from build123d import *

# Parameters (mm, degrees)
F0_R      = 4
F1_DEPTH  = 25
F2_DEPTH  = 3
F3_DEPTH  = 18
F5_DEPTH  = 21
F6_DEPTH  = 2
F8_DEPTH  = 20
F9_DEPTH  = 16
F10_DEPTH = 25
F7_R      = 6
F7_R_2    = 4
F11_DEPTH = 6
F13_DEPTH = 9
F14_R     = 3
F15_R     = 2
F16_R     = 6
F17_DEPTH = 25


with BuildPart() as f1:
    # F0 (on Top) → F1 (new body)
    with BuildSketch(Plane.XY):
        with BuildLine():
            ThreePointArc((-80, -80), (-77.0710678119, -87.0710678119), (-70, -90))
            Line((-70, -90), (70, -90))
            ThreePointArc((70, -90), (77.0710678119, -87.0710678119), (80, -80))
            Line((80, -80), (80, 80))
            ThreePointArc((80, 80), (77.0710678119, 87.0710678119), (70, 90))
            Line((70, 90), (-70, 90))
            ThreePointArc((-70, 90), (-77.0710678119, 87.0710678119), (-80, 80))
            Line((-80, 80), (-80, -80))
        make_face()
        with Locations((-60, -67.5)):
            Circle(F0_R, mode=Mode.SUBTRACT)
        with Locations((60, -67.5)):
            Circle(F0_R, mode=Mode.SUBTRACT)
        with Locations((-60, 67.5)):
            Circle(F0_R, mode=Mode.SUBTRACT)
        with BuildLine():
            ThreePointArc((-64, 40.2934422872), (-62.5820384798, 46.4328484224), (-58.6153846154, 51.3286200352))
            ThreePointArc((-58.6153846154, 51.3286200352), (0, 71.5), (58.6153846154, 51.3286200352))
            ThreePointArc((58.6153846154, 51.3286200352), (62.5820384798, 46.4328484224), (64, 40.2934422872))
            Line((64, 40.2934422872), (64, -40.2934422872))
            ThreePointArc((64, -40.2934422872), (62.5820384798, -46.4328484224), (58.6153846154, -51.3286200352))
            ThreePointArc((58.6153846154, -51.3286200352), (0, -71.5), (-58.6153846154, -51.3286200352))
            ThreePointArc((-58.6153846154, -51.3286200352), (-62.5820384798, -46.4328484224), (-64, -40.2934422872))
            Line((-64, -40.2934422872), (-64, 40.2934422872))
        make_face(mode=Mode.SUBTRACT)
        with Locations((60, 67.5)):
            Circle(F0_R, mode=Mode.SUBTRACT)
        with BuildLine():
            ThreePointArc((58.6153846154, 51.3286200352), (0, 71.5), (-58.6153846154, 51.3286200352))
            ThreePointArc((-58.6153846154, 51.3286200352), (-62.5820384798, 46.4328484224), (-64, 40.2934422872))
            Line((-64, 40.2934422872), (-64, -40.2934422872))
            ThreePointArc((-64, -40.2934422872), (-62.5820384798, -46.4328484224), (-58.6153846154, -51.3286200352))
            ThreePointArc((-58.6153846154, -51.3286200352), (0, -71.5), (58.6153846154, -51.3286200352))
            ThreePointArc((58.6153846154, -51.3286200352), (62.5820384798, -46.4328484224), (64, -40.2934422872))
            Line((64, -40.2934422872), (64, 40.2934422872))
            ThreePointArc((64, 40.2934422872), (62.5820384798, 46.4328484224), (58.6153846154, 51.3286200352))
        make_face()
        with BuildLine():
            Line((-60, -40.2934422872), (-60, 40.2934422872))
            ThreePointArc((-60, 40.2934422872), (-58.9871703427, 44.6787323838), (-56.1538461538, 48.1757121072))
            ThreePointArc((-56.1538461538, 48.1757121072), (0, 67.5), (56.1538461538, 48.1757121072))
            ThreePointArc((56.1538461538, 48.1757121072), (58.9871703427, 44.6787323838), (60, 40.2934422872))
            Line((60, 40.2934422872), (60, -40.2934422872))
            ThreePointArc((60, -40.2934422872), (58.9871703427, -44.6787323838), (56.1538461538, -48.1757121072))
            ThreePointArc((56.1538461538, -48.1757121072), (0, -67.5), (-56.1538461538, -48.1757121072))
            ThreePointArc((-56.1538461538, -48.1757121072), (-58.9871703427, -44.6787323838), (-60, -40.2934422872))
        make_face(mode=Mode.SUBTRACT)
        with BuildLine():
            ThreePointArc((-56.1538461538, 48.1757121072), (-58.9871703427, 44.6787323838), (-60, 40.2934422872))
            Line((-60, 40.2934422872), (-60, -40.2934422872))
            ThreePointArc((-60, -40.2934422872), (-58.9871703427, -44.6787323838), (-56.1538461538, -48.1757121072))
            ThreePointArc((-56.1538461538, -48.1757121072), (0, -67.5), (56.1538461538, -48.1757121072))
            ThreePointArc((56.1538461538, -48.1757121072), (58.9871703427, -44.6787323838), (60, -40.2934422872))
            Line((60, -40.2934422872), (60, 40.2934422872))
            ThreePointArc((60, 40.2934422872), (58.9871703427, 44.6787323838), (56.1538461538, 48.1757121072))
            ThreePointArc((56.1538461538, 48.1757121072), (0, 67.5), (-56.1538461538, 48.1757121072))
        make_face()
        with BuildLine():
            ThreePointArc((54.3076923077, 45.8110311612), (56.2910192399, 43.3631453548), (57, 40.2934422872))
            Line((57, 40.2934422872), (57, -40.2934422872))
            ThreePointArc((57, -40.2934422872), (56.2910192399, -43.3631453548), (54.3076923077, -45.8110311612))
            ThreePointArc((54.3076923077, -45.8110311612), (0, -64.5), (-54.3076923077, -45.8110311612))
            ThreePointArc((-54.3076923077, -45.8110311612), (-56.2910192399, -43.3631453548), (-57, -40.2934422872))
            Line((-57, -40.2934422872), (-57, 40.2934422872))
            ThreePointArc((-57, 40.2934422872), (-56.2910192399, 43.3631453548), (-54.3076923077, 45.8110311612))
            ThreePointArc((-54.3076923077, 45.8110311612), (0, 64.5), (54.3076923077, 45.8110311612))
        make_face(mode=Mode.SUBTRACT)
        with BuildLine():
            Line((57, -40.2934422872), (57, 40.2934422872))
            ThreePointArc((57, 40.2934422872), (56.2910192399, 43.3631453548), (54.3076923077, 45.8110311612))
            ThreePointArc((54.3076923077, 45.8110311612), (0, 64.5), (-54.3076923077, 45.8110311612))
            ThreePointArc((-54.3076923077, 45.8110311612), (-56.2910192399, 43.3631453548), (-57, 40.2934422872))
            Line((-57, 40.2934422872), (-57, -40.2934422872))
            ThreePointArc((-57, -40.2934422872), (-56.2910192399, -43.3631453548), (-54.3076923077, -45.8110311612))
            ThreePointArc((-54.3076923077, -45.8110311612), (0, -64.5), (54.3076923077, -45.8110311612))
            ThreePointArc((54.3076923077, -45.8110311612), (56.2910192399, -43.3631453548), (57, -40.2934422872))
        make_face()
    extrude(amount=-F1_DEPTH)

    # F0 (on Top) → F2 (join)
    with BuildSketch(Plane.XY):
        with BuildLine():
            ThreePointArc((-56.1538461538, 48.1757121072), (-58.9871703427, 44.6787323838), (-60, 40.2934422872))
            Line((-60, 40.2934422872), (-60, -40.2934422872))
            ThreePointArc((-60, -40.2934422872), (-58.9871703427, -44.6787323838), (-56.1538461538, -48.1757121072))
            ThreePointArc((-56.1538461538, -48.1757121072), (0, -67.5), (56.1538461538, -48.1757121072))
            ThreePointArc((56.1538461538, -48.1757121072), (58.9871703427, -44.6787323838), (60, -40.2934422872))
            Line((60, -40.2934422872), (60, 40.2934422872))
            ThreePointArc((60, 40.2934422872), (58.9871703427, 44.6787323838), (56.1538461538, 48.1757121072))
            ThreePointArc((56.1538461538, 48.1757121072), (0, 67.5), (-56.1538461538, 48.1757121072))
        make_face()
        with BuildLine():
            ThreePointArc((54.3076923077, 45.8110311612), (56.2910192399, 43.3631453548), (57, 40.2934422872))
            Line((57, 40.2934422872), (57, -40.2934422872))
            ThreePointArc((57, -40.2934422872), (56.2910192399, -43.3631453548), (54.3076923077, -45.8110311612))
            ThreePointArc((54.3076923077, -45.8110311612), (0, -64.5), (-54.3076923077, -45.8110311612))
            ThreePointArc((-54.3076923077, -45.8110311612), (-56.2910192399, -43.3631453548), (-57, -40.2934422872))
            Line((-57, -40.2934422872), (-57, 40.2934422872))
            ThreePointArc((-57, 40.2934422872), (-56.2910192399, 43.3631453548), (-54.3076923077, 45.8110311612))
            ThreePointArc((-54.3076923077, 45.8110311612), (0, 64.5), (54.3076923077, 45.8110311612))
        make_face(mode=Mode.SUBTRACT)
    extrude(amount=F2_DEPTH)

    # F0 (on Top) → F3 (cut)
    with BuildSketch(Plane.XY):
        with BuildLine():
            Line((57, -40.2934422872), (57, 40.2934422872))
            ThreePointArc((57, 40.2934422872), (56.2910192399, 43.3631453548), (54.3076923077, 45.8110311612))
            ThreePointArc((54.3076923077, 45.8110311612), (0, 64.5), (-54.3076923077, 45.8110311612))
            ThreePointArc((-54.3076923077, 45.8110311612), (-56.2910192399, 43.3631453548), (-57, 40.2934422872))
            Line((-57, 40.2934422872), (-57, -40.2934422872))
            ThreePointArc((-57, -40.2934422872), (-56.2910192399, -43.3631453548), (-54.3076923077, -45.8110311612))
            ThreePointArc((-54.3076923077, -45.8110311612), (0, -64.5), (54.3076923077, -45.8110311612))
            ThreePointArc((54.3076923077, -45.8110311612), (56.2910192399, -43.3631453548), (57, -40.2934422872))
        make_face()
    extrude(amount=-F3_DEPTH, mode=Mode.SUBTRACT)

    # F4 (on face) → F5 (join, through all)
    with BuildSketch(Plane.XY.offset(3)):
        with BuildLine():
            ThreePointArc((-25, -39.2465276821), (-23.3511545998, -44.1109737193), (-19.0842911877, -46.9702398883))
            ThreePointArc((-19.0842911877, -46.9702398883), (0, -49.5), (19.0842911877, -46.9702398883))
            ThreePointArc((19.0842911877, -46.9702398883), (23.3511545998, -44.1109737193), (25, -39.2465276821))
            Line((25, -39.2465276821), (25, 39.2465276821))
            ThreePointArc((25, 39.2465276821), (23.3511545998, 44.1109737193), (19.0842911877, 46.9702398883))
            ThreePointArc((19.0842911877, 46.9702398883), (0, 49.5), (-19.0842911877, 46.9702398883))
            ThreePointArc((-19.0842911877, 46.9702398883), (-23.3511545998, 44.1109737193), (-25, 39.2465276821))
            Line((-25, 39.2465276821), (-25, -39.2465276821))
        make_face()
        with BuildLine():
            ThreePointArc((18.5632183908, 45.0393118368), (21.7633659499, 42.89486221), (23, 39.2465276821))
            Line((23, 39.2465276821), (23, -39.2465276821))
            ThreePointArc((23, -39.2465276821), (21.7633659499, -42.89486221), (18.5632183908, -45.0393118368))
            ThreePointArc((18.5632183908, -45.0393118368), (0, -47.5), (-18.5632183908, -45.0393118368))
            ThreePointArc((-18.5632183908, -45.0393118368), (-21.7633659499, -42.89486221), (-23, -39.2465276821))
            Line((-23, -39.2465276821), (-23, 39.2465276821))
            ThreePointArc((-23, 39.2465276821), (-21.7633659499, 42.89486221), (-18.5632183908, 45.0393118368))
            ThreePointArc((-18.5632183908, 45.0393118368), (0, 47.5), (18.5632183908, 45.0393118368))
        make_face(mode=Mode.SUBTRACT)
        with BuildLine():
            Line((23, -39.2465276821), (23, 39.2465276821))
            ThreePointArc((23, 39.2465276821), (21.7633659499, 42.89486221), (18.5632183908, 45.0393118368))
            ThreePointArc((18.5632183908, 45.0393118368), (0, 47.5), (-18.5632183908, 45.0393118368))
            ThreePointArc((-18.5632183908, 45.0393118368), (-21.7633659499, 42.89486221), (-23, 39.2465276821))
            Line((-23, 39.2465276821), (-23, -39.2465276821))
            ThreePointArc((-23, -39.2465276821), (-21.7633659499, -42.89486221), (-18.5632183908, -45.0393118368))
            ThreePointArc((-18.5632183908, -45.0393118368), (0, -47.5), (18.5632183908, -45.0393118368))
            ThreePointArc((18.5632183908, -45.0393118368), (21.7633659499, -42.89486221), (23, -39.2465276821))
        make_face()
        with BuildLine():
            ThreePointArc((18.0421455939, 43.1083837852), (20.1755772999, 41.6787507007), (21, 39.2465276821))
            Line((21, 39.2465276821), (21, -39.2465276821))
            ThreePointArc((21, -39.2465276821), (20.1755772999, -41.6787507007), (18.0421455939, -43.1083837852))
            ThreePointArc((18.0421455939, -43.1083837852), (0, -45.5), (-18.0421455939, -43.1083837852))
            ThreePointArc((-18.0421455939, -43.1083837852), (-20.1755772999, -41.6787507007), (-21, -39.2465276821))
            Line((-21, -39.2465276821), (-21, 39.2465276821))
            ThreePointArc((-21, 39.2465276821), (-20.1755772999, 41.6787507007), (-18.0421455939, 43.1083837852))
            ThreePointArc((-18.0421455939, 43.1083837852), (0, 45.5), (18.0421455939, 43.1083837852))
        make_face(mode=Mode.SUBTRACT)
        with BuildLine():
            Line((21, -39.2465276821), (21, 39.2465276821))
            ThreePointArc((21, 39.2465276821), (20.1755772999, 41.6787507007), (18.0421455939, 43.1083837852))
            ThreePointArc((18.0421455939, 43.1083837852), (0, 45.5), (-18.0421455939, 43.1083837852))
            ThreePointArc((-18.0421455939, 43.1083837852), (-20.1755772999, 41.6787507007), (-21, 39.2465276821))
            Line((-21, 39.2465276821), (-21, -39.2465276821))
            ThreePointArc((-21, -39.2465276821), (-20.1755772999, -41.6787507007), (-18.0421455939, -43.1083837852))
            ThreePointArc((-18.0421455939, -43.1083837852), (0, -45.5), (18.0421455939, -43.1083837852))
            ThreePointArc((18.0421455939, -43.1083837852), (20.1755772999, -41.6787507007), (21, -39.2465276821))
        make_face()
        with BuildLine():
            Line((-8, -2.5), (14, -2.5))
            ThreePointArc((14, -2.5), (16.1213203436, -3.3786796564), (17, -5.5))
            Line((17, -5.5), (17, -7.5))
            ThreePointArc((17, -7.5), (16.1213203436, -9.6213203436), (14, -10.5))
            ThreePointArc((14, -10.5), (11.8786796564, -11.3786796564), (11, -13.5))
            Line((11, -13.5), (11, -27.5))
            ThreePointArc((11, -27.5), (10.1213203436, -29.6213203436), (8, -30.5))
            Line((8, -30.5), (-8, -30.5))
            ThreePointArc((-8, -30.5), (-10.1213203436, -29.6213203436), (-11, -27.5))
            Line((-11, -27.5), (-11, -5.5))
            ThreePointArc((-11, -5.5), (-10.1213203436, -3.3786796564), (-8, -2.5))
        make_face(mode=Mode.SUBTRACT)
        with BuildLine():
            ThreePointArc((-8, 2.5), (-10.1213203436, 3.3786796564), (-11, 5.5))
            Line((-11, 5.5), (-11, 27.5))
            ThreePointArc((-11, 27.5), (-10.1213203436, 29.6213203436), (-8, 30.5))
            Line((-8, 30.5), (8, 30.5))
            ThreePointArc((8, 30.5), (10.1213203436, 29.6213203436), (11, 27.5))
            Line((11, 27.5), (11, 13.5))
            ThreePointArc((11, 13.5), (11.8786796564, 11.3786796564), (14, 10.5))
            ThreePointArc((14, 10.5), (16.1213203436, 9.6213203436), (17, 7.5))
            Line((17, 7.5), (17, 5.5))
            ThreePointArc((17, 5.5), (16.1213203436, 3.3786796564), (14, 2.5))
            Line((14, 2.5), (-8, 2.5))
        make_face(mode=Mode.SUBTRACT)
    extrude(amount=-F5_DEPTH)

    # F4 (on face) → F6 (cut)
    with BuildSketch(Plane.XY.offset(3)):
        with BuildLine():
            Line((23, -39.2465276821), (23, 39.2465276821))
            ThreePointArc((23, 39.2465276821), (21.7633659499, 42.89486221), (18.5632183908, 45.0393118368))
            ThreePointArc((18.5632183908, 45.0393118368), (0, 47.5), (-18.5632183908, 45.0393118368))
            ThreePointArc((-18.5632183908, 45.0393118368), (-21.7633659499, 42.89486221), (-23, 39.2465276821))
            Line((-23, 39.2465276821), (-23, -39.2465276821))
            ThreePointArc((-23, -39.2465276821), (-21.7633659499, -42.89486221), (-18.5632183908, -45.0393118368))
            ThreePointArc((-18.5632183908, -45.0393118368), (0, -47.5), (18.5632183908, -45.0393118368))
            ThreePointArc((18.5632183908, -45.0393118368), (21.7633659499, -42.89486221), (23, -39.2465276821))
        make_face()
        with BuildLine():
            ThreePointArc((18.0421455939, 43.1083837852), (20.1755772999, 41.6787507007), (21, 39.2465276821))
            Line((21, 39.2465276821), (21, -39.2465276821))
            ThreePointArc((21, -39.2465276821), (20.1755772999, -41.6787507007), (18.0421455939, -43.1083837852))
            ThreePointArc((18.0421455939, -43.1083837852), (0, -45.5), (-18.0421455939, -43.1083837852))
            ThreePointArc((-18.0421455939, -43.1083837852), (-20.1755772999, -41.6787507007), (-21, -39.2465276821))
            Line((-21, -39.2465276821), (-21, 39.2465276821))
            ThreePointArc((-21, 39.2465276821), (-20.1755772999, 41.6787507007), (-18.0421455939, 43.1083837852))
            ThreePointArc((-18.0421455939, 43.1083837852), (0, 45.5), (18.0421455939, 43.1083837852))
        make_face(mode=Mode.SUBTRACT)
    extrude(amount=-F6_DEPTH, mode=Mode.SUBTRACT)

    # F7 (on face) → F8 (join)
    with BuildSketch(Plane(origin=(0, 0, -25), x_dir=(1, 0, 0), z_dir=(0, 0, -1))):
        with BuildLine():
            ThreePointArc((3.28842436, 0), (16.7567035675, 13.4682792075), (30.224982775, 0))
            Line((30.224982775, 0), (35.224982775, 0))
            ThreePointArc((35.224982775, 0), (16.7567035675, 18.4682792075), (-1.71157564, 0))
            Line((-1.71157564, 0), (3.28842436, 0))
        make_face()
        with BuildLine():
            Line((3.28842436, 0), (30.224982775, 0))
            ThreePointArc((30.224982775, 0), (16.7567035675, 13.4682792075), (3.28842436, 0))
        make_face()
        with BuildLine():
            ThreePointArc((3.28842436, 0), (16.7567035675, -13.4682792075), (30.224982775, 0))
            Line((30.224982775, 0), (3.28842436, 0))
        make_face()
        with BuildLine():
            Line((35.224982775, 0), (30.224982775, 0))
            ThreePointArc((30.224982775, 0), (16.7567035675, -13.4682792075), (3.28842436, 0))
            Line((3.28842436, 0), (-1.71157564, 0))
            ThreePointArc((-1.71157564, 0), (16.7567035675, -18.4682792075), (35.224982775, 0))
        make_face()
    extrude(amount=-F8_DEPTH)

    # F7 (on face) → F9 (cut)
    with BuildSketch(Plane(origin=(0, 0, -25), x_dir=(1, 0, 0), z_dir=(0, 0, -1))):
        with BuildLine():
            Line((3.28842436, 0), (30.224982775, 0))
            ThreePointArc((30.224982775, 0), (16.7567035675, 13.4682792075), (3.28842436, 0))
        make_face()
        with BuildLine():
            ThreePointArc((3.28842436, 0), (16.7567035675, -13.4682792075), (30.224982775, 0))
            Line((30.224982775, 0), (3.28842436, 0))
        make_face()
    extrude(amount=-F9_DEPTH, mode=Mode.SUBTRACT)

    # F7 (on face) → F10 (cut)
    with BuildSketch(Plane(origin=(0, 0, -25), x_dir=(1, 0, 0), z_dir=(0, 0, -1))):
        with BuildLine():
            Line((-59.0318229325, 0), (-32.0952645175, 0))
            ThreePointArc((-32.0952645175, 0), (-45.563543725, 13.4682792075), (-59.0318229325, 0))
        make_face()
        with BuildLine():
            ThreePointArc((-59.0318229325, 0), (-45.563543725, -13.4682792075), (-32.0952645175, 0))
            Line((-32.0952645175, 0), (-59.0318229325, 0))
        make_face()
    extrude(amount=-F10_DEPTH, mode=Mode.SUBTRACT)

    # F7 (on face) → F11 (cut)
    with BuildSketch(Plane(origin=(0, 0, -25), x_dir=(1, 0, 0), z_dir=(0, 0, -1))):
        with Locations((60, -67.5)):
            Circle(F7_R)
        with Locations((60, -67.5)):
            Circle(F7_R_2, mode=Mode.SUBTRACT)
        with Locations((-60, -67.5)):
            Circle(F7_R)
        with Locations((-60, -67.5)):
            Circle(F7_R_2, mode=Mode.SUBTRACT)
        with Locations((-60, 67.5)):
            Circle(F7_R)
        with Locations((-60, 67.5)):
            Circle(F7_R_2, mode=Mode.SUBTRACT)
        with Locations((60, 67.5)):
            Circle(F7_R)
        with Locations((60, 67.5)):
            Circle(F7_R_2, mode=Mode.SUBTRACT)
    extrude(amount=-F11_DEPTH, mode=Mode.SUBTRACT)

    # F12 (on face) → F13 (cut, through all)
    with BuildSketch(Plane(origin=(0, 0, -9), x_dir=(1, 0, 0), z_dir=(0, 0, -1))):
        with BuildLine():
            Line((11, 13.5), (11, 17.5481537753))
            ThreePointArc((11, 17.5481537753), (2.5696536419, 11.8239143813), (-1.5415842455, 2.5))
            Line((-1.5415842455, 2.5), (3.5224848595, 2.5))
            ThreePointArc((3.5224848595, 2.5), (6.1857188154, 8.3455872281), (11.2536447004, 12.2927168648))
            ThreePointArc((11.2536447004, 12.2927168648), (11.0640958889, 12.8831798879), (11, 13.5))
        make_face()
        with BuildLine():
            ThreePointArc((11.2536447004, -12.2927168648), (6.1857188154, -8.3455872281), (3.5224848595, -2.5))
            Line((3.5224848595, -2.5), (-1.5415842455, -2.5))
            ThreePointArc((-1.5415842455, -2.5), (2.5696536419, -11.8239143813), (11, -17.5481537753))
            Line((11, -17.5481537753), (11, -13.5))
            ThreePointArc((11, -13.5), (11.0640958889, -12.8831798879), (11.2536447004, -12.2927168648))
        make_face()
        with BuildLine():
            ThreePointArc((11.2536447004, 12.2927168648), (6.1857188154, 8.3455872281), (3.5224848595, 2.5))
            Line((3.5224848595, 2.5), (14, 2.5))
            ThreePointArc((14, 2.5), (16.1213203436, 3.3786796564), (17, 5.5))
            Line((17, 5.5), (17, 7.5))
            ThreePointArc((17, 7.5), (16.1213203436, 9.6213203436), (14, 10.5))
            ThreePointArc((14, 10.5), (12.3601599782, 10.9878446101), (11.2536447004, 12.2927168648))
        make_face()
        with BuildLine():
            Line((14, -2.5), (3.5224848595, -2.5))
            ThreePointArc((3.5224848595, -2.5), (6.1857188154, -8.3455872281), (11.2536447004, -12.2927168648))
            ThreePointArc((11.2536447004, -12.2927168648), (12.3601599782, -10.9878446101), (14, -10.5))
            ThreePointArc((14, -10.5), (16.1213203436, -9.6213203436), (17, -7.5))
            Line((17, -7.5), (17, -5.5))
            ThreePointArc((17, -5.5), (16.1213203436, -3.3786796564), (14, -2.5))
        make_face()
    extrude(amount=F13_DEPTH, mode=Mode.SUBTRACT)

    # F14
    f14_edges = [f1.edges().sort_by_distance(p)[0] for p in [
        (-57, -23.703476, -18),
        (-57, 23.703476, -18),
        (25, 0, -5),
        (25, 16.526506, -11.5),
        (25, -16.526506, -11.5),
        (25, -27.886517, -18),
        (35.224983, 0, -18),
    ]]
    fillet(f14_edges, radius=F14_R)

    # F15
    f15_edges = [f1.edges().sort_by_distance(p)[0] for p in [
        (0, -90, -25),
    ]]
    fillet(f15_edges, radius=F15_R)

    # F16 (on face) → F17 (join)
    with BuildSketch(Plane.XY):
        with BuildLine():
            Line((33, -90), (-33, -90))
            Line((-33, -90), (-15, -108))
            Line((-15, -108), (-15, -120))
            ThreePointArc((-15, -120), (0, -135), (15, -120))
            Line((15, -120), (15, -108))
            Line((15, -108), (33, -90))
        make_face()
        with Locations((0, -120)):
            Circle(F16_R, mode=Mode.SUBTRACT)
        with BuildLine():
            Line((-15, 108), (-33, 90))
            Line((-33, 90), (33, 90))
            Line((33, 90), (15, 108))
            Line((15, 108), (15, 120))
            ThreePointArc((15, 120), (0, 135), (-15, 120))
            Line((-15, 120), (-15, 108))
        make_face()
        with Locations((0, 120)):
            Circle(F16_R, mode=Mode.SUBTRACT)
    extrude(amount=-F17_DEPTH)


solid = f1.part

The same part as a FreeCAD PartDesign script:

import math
import FreeCAD as App
import Part
import Sketcher

V = App.Vector
Q = App.Units.Quantity


def edges_at(feature, points):
    """Names of the edges that pass closest to the given points."""
    edges = feature.Shape.Edges
    near = lambda p: min(range(len(edges)), key=lambda i: edges[i].distToShape(Part.Vertex(*p))[0])
    return sorted({f"Edge{near(p) + 1}" for p in points})

doc = App.newDocument("Part")
body = doc.addObject("PartDesign::Body", "Body")

# Sketch on XY plane
sketch1 = body.newObject("Sketcher::SketchObject", "Sketch")
sketch1.AttachmentSupport = (doc.getObject("XY_Plane"), [""])
sketch1.MapMode = "FlatFace"
sketch1.addGeometry([
    Part.ArcOfCircle(Part.Circle(V(-70, -80, 0), V(0, 0, 1), 10), math.radians(180), math.radians(270)),  # 0
    Part.LineSegment(V(-70, -90, 0), V(70, -90, 0)),  # 1
    Part.ArcOfCircle(Part.Circle(V(70, -80, 0), V(0, 0, 1), 10), math.radians(-90), math.radians(0)),  # 2
    Part.LineSegment(V(80, -80, 0), V(80, 80, 0)),  # 3
    Part.ArcOfCircle(Part.Circle(V(70, 80, 0), V(0, 0, 1), 10), math.radians(0), math.radians(90)),  # 4
    Part.LineSegment(V(70, 90, 0), V(-70, 90, 0)),  # 5
    Part.ArcOfCircle(Part.Circle(V(-70, 80, 0), V(0, 0, 1), 10), math.radians(90), math.radians(180)),  # 6
    Part.LineSegment(V(-80, 80, 0), V(-80, -80, 0)),  # 7
    Part.Circle(V(-60, -67.5, 0), V(0, 0, 1), 4),  # 8
    Part.Circle(V(60, -67.5, 0), V(0, 0, 1), 4),  # 9
    Part.Circle(V(-60, 67.5, 0), V(0, 0, 1), 4),  # 10
    Part.Circle(V(60, 67.5, 0), V(0, 0, 1), 4),  # 11
], False)
sketch1.addConstraint([
    Sketcher.Constraint("Tangent", 0, 2, 1, 1),
    Sketcher.Constraint("Tangent", 1, 2, 2, 1),
    Sketcher.Constraint("Tangent", 2, 2, 3, 1),
    Sketcher.Constraint("Tangent", 3, 2, 4, 1),
    Sketcher.Constraint("Tangent", 4, 2, 5, 1),
    Sketcher.Constraint("Tangent", 5, 2, 6, 1),
    Sketcher.Constraint("Tangent", 6, 2, 7, 1),
    Sketcher.Constraint("Tangent", 7, 2, 0, 1),
    Sketcher.Constraint("Horizontal", 1),
    Sketcher.Constraint("Vertical", 3),
    Sketcher.Constraint("Horizontal", 5),
    Sketcher.Constraint("Vertical", 7),
    Sketcher.Constraint("Equal", 0, 2),
    Sketcher.Constraint("Equal", 2, 4),
    Sketcher.Constraint("Equal", 4, 6),
    Sketcher.Constraint("Equal", 8, 9),
    Sketcher.Constraint("Equal", 9, 10),
    Sketcher.Constraint("Equal", 10, 11),
    Sketcher.Constraint("Symmetric", 0, 3, 4, 3, -1, 1),
    Sketcher.Constraint("Symmetric", 9, 3, 10, 3, -1, 1),
    Sketcher.Constraint("Symmetric", 8, 3, 11, 3, -1, 1),
    Sketcher.Constraint("Symmetric", 8, 3, 9, 3, -2),
    Sketcher.Constraint("Diameter", 8, Q("8 mm")),
    Sketcher.Constraint("Radius", 0, Q("10 mm")),
    Sketcher.Constraint("DistanceX", 1, 1, 1, 2, Q("140 mm")),
    Sketcher.Constraint("DistanceY", 3, 1, 3, 2, Q("160 mm")),
    Sketcher.Constraint("DistanceX", 8, 3, -1, 1, Q("60 mm")),
    Sketcher.Constraint("DistanceY", 8, 3, 10, 3, Q("135 mm")),
])
pad1 = body.newObject("PartDesign::Pad", "Pad")
pad1.Profile = sketch1
pad1.Length = 25
pad1.Reversed = True

# Sketch on XY plane
sketch2 = body.newObject("Sketcher::SketchObject", "Sketch001")
sketch2.AttachmentSupport = (doc.getObject("XY_Plane"), [""])
sketch2.MapMode = "FlatFace"
sketch2.addGeometry([
    Part.ArcOfCircle(Part.Circle(V(-50, 40, 0), V(0, 0, 1), 10), math.radians(128), math.radians(180)),  # 0
    Part.LineSegment(V(-60, 40, 0), V(-60, -40, 0)),  # 1
    Part.ArcOfCircle(Part.Circle(V(-50, -40, 0), V(0, 0, 1), 10), math.radians(180), math.radians(232)),  # 2
    Part.ArcOfCircle(Part.Circle(V(0, 24, 0), V(0, 0, 1), 91), math.radians(-128), math.radians(-52)),  # 3
    Part.ArcOfCircle(Part.Circle(V(50, -40, 0), V(0, 0, 1), 10), math.radians(-52), math.radians(0)),  # 4
    Part.LineSegment(V(60, -40, 0), V(60, 40, 0)),  # 5
    Part.ArcOfCircle(Part.Circle(V(50, 40, 0), V(0, 0, 1), 10), math.radians(0), math.radians(52)),  # 6
    Part.ArcOfCircle(Part.Circle(V(0, -24, 0), V(0, 0, 1), 91), math.radians(52), math.radians(128)),  # 7
    Part.ArcOfCircle(Part.Circle(V(0, -24, 0), V(0, 0, 1), 88), math.radians(52), math.radians(128)),  # 8
    Part.ArcOfCircle(Part.Circle(V(50, 40, 0), V(0, 0, 1), 7), math.radians(0), math.radians(52)),  # 9
    Part.LineSegment(V(57, 40, 0), V(57, -40, 0)),  # 10
    Part.ArcOfCircle(Part.Circle(V(50, -40, 0), V(0, 0, 1), 7), math.radians(-52), math.radians(0)),  # 11
    Part.ArcOfCircle(Part.Circle(V(0, 24, 0), V(0, 0, 1), 88), math.radians(-128), math.radians(-52)),  # 12
    Part.ArcOfCircle(Part.Circle(V(-50, -40, 0), V(0, 0, 1), 7), math.radians(180), math.radians(232)),  # 13
    Part.LineSegment(V(-57, -40, 0), V(-57, 40, 0)),  # 14
    Part.ArcOfCircle(Part.Circle(V(-50, 40, 0), V(0, 0, 1), 7), math.radians(128), math.radians(180)),  # 15
], False)
sketch2.addConstraint([
    Sketcher.Constraint("Tangent", 0, 2, 1, 1),
    Sketcher.Constraint("Tangent", 1, 2, 2, 1),
    Sketcher.Constraint("Tangent", 2, 2, 3, 1),
    Sketcher.Constraint("Tangent", 3, 2, 4, 1),
    Sketcher.Constraint("Tangent", 4, 2, 5, 1),
    Sketcher.Constraint("Tangent", 5, 2, 6, 1),
    Sketcher.Constraint("Tangent", 6, 2, 7, 1),
    Sketcher.Constraint("Tangent", 7, 2, 0, 1),
    Sketcher.Constraint("Tangent", 8, 1, 9, 2),
    Sketcher.Constraint("Tangent", 9, 1, 10, 1),
    Sketcher.Constraint("Tangent", 10, 2, 11, 2),
    Sketcher.Constraint("Tangent", 11, 1, 12, 2),
    Sketcher.Constraint("Tangent", 12, 1, 13, 2),
    Sketcher.Constraint("Tangent", 13, 1, 14, 1),
    Sketcher.Constraint("Tangent", 14, 2, 15, 2),
    Sketcher.Constraint("Tangent", 15, 1, 8, 2),
    Sketcher.Constraint("Vertical", 1),
    Sketcher.Constraint("Vertical", 5),
    Sketcher.Constraint("Vertical", 10),
    Sketcher.Constraint("Vertical", 14),
    Sketcher.Constraint("Coincident", 8, 3, 7, 3),
    Sketcher.Constraint("Coincident", 9, 3, 6, 3),
    Sketcher.Constraint("Coincident", 11, 3, 4, 3),
    Sketcher.Constraint("Coincident", 12, 3, 3, 3),
    Sketcher.Constraint("Coincident", 13, 3, 2, 3),
    Sketcher.Constraint("Equal", 0, 2),
    Sketcher.Constraint("Equal", 2, 4),
    Sketcher.Constraint("Equal", 4, 6),
    Sketcher.Constraint("Equal", 3, 7),
    Sketcher.Constraint("Equal", 13, 15),
    Sketcher.Constraint("Symmetric", 0, 3, 4, 3, -1, 1),
    Sketcher.Constraint("Symmetric", 3, 3, 7, 3, -1),
    Sketcher.Constraint("Radius", 0, Q("10 mm")),
    Sketcher.Constraint("Radius", 9, Q("7 mm")),
    Sketcher.Constraint("Radius", 3, Q("91.25 mm")),
    Sketcher.Constraint("DistanceX", 0, 3, -1, 1, Q("50 mm")),
    Sketcher.Constraint("DistanceY", 7, 3, 3, 3, Q("47.5 mm")),
])
pad2 = body.newObject("PartDesign::Pad", "Pad001")
pad2.Profile = sketch2
pad2.Length = 3

# Sketch on XY plane
sketch3 = body.newObject("Sketcher::SketchObject", "Sketch002")
sketch3.AttachmentSupport = (doc.getObject("XY_Plane"), [""])
sketch3.MapMode = "FlatFace"
sketch3.addGeometry([
    Part.LineSegment(V(57, -40, 0), V(57, 40, 0)),  # 0
    Part.ArcOfCircle(Part.Circle(V(50, 40, 0), V(0, 0, 1), 7), math.radians(0), math.radians(52)),  # 1
    Part.ArcOfCircle(Part.Circle(V(0, -24, 0), V(0, 0, 1), 88), math.radians(52), math.radians(128)),  # 2
    Part.ArcOfCircle(Part.Circle(V(-50, 40, 0), V(0, 0, 1), 7), math.radians(128), math.radians(180)),  # 3
    Part.LineSegment(V(-57, 40, 0), V(-57, -40, 0)),  # 4
    Part.ArcOfCircle(Part.Circle(V(-50, -40, 0), V(0, 0, 1), 7), math.radians(180), math.radians(232)),  # 5
    Part.ArcOfCircle(Part.Circle(V(0, 24, 0), V(0, 0, 1), 88), math.radians(-128), math.radians(-52)),  # 6
    Part.ArcOfCircle(Part.Circle(V(50, -40, 0), V(0, 0, 1), 7), math.radians(-52), math.radians(0)),  # 7
], False)
sketch3.addConstraint([
    Sketcher.Constraint("Tangent", 0, 2, 1, 1),
    Sketcher.Constraint("Tangent", 1, 2, 2, 1),
    Sketcher.Constraint("Tangent", 2, 2, 3, 1),
    Sketcher.Constraint("Tangent", 3, 2, 4, 1),
    Sketcher.Constraint("Tangent", 4, 2, 5, 1),
    Sketcher.Constraint("Tangent", 5, 2, 6, 1),
    Sketcher.Constraint("Tangent", 6, 2, 7, 1),
    Sketcher.Constraint("Tangent", 7, 2, 0, 1),
    Sketcher.Constraint("Vertical", 0),
    Sketcher.Constraint("Vertical", 4),
    Sketcher.Constraint("Equal", 1, 3),
    Sketcher.Constraint("Equal", 3, 5),
    Sketcher.Constraint("Equal", 2, 6),
    Sketcher.Constraint("Equal", 5, 7),
    Sketcher.Constraint("Symmetric", 1, 3, 5, 3, -1, 1),
    Sketcher.Constraint("Symmetric", 2, 3, 6, 3, -1),
    Sketcher.Constraint("Radius", 1, Q("7 mm")),
    Sketcher.Constraint("Radius", 2, Q("88.25 mm")),
    Sketcher.Constraint("DistanceX", -1, 1, 1, 3, Q("50 mm")),
    Sketcher.Constraint("DistanceY", 2, 3, 6, 3, Q("47.5 mm")),
])
pocket1 = body.newObject("PartDesign::Pocket", "Pocket")
pocket1.Profile = sketch3
pocket1.Length = 18

# Sketch on XY plane
sketch4 = body.newObject("Sketcher::SketchObject", "Sketch003")
sketch4.AttachmentSupport = (doc.getObject("XY_Plane"), [""])
sketch4.MapMode = "FlatFace"
sketch4.AttachmentOffset = App.Placement(V(0, 0, 3), App.Rotation())
sketch4.addGeometry([
    Part.ArcOfCircle(Part.Circle(V(-17, -39.2, 0), V(0, 0, 1), 8), math.radians(180), math.radians(255)),  # 0
    Part.ArcOfCircle(Part.Circle(V(0, 23.7, 0), V(0, 0, 1), 73.2), math.radians(-105), math.radians(-75)),  # 1
    Part.ArcOfCircle(Part.Circle(V(17, -39.2, 0), V(0, 0, 1), 8), math.radians(-75), math.radians(0)),  # 2
    Part.LineSegment(V(25, -39.2, 0), V(25, 39.2, 0)),  # 3
    Part.ArcOfCircle(Part.Circle(V(17, 39.2, 0), V(0, 0, 1), 8), math.radians(0), math.radians(75)),  # 4
    Part.ArcOfCircle(Part.Circle(V(0, -23.7, 0), V(0, 0, 1), 73.2), math.radians(75), math.radians(105)),  # 5
    Part.ArcOfCircle(Part.Circle(V(-17, 39.2, 0), V(0, 0, 1), 8), math.radians(105), math.radians(180)),  # 6
    Part.LineSegment(V(-25, 39.2, 0), V(-25, -39.2, 0)),  # 7
    Part.ArcOfCircle(Part.Circle(V(-8, -5.5, 0), V(0, 0, 1), 3), math.radians(90), math.radians(180)),  # 8
    Part.LineSegment(V(-8, -2.5, 0), V(14, -2.5, 0)),  # 9
    Part.ArcOfCircle(Part.Circle(V(14, -5.5, 0), V(0, 0, 1), 3), math.radians(0), math.radians(90)),  # 10
    Part.LineSegment(V(17, -5.5, 0), V(17, -7.5, 0)),  # 11
    Part.ArcOfCircle(Part.Circle(V(14, -7.5, 0), V(0, 0, 1), 3), math.radians(-90), math.radians(0)),  # 12
    Part.ArcOfCircle(Part.Circle(V(14, -13.5, 0), V(0, 0, 1), 3), math.radians(90), math.radians(180)),  # 13
    Part.LineSegment(V(11, -13.5, 0), V(11, -27.5, 0)),  # 14
    Part.ArcOfCircle(Part.Circle(V(8, -27.5, 0), V(0, 0, 1), 3), math.radians(-90), math.radians(0)),  # 15
    Part.LineSegment(V(8, -30.5, 0), V(-8, -30.5, 0)),  # 16
    Part.ArcOfCircle(Part.Circle(V(-8, -27.5, 0), V(0, 0, 1), 3), math.radians(180), math.radians(270)),  # 17
    Part.LineSegment(V(-11, -27.5, 0), V(-11, -5.5, 0)),  # 18
    Part.LineSegment(V(14, 2.5, 0), V(-8, 2.5, 0)),  # 19
    Part.ArcOfCircle(Part.Circle(V(-8, 5.5, 0), V(0, 0, 1), 3), math.radians(180), math.radians(270)),  # 20
    Part.LineSegment(V(-11, 5.5, 0), V(-11, 27.5, 0)),  # 21
    Part.ArcOfCircle(Part.Circle(V(-8, 27.5, 0), V(0, 0, 1), 3), math.radians(90), math.radians(180)),  # 22
    Part.LineSegment(V(-8, 30.5, 0), V(8, 30.5, 0)),  # 23
    Part.ArcOfCircle(Part.Circle(V(8, 27.5, 0), V(0, 0, 1), 3), math.radians(0), math.radians(90)),  # 24
    Part.LineSegment(V(11, 27.5, 0), V(11, 13.5, 0)),  # 25
    Part.ArcOfCircle(Part.Circle(V(14, 13.5, 0), V(0, 0, 1), 3), math.radians(180), math.radians(270)),  # 26
    Part.ArcOfCircle(Part.Circle(V(14, 7.5, 0), V(0, 0, 1), 3), math.radians(0), math.radians(90)),  # 27
    Part.LineSegment(V(17, 7.5, 0), V(17, 5.5, 0)),  # 28
    Part.ArcOfCircle(Part.Circle(V(14, 5.5, 0), V(0, 0, 1), 3), math.radians(-90), math.radians(0)),  # 29
], False)
sketch4.addConstraint([
    Sketcher.Constraint("Tangent", 0, 2, 1, 1),
    Sketcher.Constraint("Tangent", 1, 2, 2, 1),
    Sketcher.Constraint("Tangent", 2, 2, 3, 1),
    Sketcher.Constraint("Tangent", 3, 2, 4, 1),
    Sketcher.Constraint("Tangent", 4, 2, 5, 1),
    Sketcher.Constraint("Tangent", 5, 2, 6, 1),
    Sketcher.Constraint("Tangent", 6, 2, 7, 1),
    Sketcher.Constraint("Tangent", 7, 2, 0, 1),
    Sketcher.Constraint("Tangent", 8, 1, 9, 1),
    Sketcher.Constraint("Tangent", 9, 2, 10, 2),
    Sketcher.Constraint("Tangent", 10, 1, 11, 1),
    Sketcher.Constraint("Tangent", 11, 2, 12, 2),
    Sketcher.Constraint("Tangent", 12, 1, 13, 1),
    Sketcher.Constraint("Tangent", 13, 2, 14, 1),
    Sketcher.Constraint("Tangent", 14, 2, 15, 2),
    Sketcher.Constraint("Tangent", 15, 1, 16, 1),
    Sketcher.Constraint("Tangent", 16, 2, 17, 2),
    Sketcher.Constraint("Tangent", 17, 1, 18, 1),
    Sketcher.Constraint("Tangent", 18, 2, 8, 2),
    Sketcher.Constraint("Tangent", 19, 2, 20, 2),
    Sketcher.Constraint("Tangent", 20, 1, 21, 1),
    Sketcher.Constraint("Tangent", 21, 2, 22, 2),
    Sketcher.Constraint("Tangent", 22, 1, 23, 1),
    Sketcher.Constraint("Tangent", 23, 2, 24, 2),
    Sketcher.Constraint("Tangent", 24, 1, 25, 1),
    Sketcher.Constraint("Tangent", 25, 2, 26, 1),
    Sketcher.Constraint("Tangent", 26, 2, 27, 2),
    Sketcher.Constraint("Tangent", 27, 1, 28, 1),
    Sketcher.Constraint("Tangent", 28, 2, 29, 2),
    Sketcher.Constraint("Tangent", 29, 1, 19, 1),
    Sketcher.Constraint("Vertical", 3),
    Sketcher.Constraint("Vertical", 7),
    Sketcher.Constraint("Horizontal", 9),
    Sketcher.Constraint("Vertical", 11),
    Sketcher.Constraint("Vertical", 14),
    Sketcher.Constraint("Horizontal", 16),
    Sketcher.Constraint("Vertical", 18),
    Sketcher.Constraint("Horizontal", 19),
    Sketcher.Constraint("Vertical", 21),
    Sketcher.Constraint("Horizontal", 23),
    Sketcher.Constraint("Vertical", 25),
    Sketcher.Constraint("Vertical", 28),
    Sketcher.Constraint("Equal", 0, 2),
    Sketcher.Constraint("Equal", 2, 4),
    Sketcher.Constraint("Equal", 1, 5),
    Sketcher.Constraint("Equal", 4, 6),
    Sketcher.Constraint("Equal", 8, 10),
    Sketcher.Constraint("Equal", 10, 12),
    Sketcher.Constraint("Equal", 12, 13),
    Sketcher.Constraint("Equal", 13, 15),
    Sketcher.Constraint("Equal", 15, 17),
    Sketcher.Constraint("Equal", 17, 20),
    Sketcher.Constraint("Equal", 20, 22),
    Sketcher.Constraint("Equal", 22, 24),
    Sketcher.Constraint("Equal", 24, 26),
    Sketcher.Constraint("Equal", 26, 27),
    Sketcher.Constraint("Equal", 27, 29),
    Sketcher.Constraint("Symmetric", 0, 3, 4, 3, -1, 1),
    Sketcher.Constraint("Symmetric", 15, 3, 22, 3, -1, 1),
    Sketcher.Constraint("Symmetric", 1, 3, 5, 3, -1),
    Sketcher.Constraint("Symmetric", 8, 3, 20, 3, -1),
    Sketcher.Constraint("Symmetric", 13, 3, 26, 3, -1),
    Sketcher.Constraint("Vertical", 12, 3, 13, 3),
    Sketcher.Constraint("Vertical", 26, 3, 27, 3),
    Sketcher.Constraint("Vertical", 4, 3, 10, 1),
    Sketcher.Constraint("Equal", 19, 18),
    Sketcher.Constraint("Radius", 0, Q("8 mm")),
    Sketcher.Constraint("Radius", 8, Q("3 mm")),
    Sketcher.Constraint("DistanceX", 9, 1, 9, 2, Q("22 mm")),
    Sketcher.Constraint("DistanceY", 11, 2, 11, 1, Q("2 mm")),
    Sketcher.Constraint("Radius", 1, Q("73.25 mm")),
    Sketcher.Constraint("DistanceY", 8, 3, 20, 3, Q("11 mm")),
    Sketcher.Constraint("DistanceY", 5, 3, 1, 3, Q("47.5 mm")),
])
pad3 = body.newObject("PartDesign::Pad", "Pad002")
pad3.Profile = sketch4
pad3.Type = "UpToLast"
pad3.Reversed = True

# Sketch on XY plane
sketch5 = body.newObject("Sketcher::SketchObject", "Sketch004")
sketch5.AttachmentSupport = (doc.getObject("XY_Plane"), [""])
sketch5.MapMode = "FlatFace"
sketch5.AttachmentOffset = App.Placement(V(0, 0, 3), App.Rotation())
sketch5.addGeometry([
    Part.LineSegment(V(23, -39.2, 0), V(23, 39.2, 0)),  # 0
    Part.ArcOfCircle(Part.Circle(V(17, 39.2, 0), V(0, 0, 1), 6), math.radians(0), math.radians(75)),  # 1
    Part.ArcOfCircle(Part.Circle(V(0, -23.8, 0), V(0, 0, 1), 71.3), math.radians(75), math.radians(105)),  # 2
    Part.ArcOfCircle(Part.Circle(V(-17, 39.2, 0), V(0, 0, 1), 6), math.radians(105), math.radians(180)),  # 3
    Part.LineSegment(V(-23, 39.2, 0), V(-23, -39.2, 0)),  # 4
    Part.ArcOfCircle(Part.Circle(V(-17, -39.2, 0), V(0, 0, 1), 6), math.radians(180), math.radians(255)),  # 5
    Part.ArcOfCircle(Part.Circle(V(0, 23.8, 0), V(0, 0, 1), 71.3), math.radians(-105), math.radians(-75)),  # 6
    Part.ArcOfCircle(Part.Circle(V(17, -39.2, 0), V(0, 0, 1), 6), math.radians(-75), math.radians(0)),  # 7
    Part.ArcOfCircle(Part.Circle(V(0, -23.8, 0), V(0, 0, 1), 69.2), math.radians(75), math.radians(105)),  # 8
    Part.ArcOfCircle(Part.Circle(V(17, 39.2, 0), V(0, 0, 1), 4), math.radians(0), math.radians(75)),  # 9
    Part.LineSegment(V(21, 39.2, 0), V(21, -39.2, 0)),  # 10
    Part.ArcOfCircle(Part.Circle(V(17, -39.2, 0), V(0, 0, 1), 4), math.radians(-75), math.radians(0)),  # 11
    Part.ArcOfCircle(Part.Circle(V(0, 23.8, 0), V(0, 0, 1), 69.2), math.radians(-105), math.radians(-75)),  # 12
    Part.ArcOfCircle(Part.Circle(V(-17, -39.2, 0), V(0, 0, 1), 4), math.radians(180), math.radians(255)),  # 13
    Part.LineSegment(V(-21, -39.2, 0), V(-21, 39.2, 0)),  # 14
    Part.ArcOfCircle(Part.Circle(V(-17, 39.2, 0), V(0, 0, 1), 4), math.radians(105), math.radians(180)),  # 15
], False)
sketch5.addConstraint([
    Sketcher.Constraint("Tangent", 0, 2, 1, 1),
    Sketcher.Constraint("Tangent", 1, 2, 2, 1),
    Sketcher.Constraint("Tangent", 2, 2, 3, 1),
    Sketcher.Constraint("Tangent", 3, 2, 4, 1),
    Sketcher.Constraint("Tangent", 4, 2, 5, 1),
    Sketcher.Constraint("Tangent", 5, 2, 6, 1),
    Sketcher.Constraint("Tangent", 6, 2, 7, 1),
    Sketcher.Constraint("Tangent", 7, 2, 0, 1),
    Sketcher.Constraint("Tangent", 8, 1, 9, 2),
    Sketcher.Constraint("Tangent", 9, 1, 10, 1),
    Sketcher.Constraint("Tangent", 10, 2, 11, 2),
    Sketcher.Constraint("Tangent", 11, 1, 12, 2),
    Sketcher.Constraint("Tangent", 12, 1, 13, 2),
    Sketcher.Constraint("Tangent", 13, 1, 14, 1),
    Sketcher.Constraint("Tangent", 14, 2, 15, 2),
    Sketcher.Constraint("Tangent", 15, 1, 8, 2),
    Sketcher.Constraint("Vertical", 0),
    Sketcher.Constraint("Vertical", 4),
    Sketcher.Constraint("Vertical", 10),
    Sketcher.Constraint("Vertical", 14),
    Sketcher.Constraint("Coincident", 8, 3, 2, 3),
    Sketcher.Constraint("Coincident", 9, 3, 1, 3),
    Sketcher.Constraint("Coincident", 11, 3, 7, 3),
    Sketcher.Constraint("Coincident", 12, 3, 6, 3),
    Sketcher.Constraint("Coincident", 13, 3, 5, 3),
    Sketcher.Constraint("Equal", 1, 3),
    Sketcher.Constraint("Equal", 3, 5),
    Sketcher.Constraint("Equal", 2, 6),
    Sketcher.Constraint("Equal", 5, 7),
    Sketcher.Constraint("Equal", 13, 15),
    Sketcher.Constraint("Symmetric", 1, 3, 5, 3, -1, 1),
    Sketcher.Constraint("Symmetric", 2, 3, 6, 3, -1),
    Sketcher.Constraint("Radius", 1, Q("6 mm")),
    Sketcher.Constraint("Radius", 9, Q("4 mm")),
    Sketcher.Constraint("Radius", 2, Q("71.25 mm")),
    Sketcher.Constraint("DistanceX", -1, 1, 1, 3, Q("17 mm")),
    Sketcher.Constraint("DistanceY", 2, 3, 6, 3, Q("47.5 mm")),
])
pocket2 = body.newObject("PartDesign::Pocket", "Pocket001")
pocket2.Profile = sketch5
pocket2.Length = 2

# Sketch on XY plane
sketch6 = body.newObject("Sketcher::SketchObject", "Sketch005")
sketch6.AttachmentSupport = (doc.getObject("XY_Plane"), [""])
sketch6.MapMode = "FlatFace"
sketch6.AttachmentOffset = App.Placement(V(0, 0, -25), App.Rotation())
sketch6.addGeometry(Part.Circle(V(17, 0, 0), V(0, 0, 1), 18), False)
sketch6.addConstraint([
    Sketcher.Constraint("PointOnObject", 0, 3, -1),
    Sketcher.Constraint("Diameter", 0, Q("36.936558 mm")),
    Sketcher.Constraint("DistanceX", -1, 1, 0, 3, Q("16.756704 mm")),
])
pad4 = body.newObject("PartDesign::Pad", "Pad003")
pad4.Profile = sketch6
pad4.Length = 20

# Sketch on XY plane
sketch7 = body.newObject("Sketcher::SketchObject", "Sketch006")
sketch7.AttachmentSupport = (doc.getObject("XY_Plane"), [""])
sketch7.MapMode = "FlatFace"
sketch7.AttachmentOffset = App.Placement(V(0, 0, -25), App.Rotation())
sketch7.addGeometry(Part.Circle(V(17, 0, 0), V(0, 0, 1), 13), False)
sketch7.addConstraint([
    Sketcher.Constraint("PointOnObject", 0, 3, -1),
    Sketcher.Constraint("Diameter", 0, Q("26.936558 mm")),
    Sketcher.Constraint("DistanceX", -1, 1, 0, 3, Q("16.756704 mm")),
])
pocket3 = body.newObject("PartDesign::Pocket", "Pocket002")
pocket3.Profile = sketch7
pocket3.Length = 16
pocket3.Reversed = True

# Sketch on XY plane
sketch8 = body.newObject("Sketcher::SketchObject", "Sketch007")
sketch8.AttachmentSupport = (doc.getObject("XY_Plane"), [""])
sketch8.MapMode = "FlatFace"
sketch8.AttachmentOffset = App.Placement(V(0, 0, -25), App.Rotation())
sketch8.addGeometry(Part.Circle(V(-46, 0, 0), V(0, 0, 1), 13), False)
sketch8.addConstraint([
    Sketcher.Constraint("PointOnObject", 0, 3, -1),
    Sketcher.Constraint("Diameter", 0, Q("26.936558 mm")),
    Sketcher.Constraint("DistanceX", 0, 3, -1, 1, Q("45.563544 mm")),
])
pocket4 = body.newObject("PartDesign::Pocket", "Pocket003")
pocket4.Profile = sketch8
pocket4.Length = 25
pocket4.Reversed = True

# Sketch on XY plane
sketch9 = body.newObject("Sketcher::SketchObject", "Sketch008")
sketch9.AttachmentSupport = (doc.getObject("XY_Plane"), [""])
sketch9.MapMode = "FlatFace"
sketch9.AttachmentOffset = App.Placement(V(0, 0, -25), App.Rotation())
sketch9.addGeometry([
    Part.Circle(V(60, 67.5, 0), V(0, 0, 1), 6),  # 0
    Part.Circle(V(60, 67.5, 0), V(0, 0, 1), 4),  # 1
    Part.Circle(V(-60, 67.5, 0), V(0, 0, 1), 6),  # 2
    Part.Circle(V(-60, 67.5, 0), V(0, 0, 1), 4),  # 3
    Part.Circle(V(-60, -67.5, 0), V(0, 0, 1), 6),  # 4
    Part.Circle(V(-60, -67.5, 0), V(0, 0, 1), 4),  # 5
    Part.Circle(V(60, -67.5, 0), V(0, 0, 1), 6),  # 6
    Part.Circle(V(60, -67.5, 0), V(0, 0, 1), 4),  # 7
], False)
sketch9.addConstraint([
    Sketcher.Constraint("Coincident", 1, 3, 0, 3),
    Sketcher.Constraint("Coincident", 3, 3, 2, 3),
    Sketcher.Constraint("Coincident", 5, 3, 4, 3),
    Sketcher.Constraint("Coincident", 7, 3, 6, 3),
    Sketcher.Constraint("Equal", 0, 2),
    Sketcher.Constraint("Equal", 1, 3),
    Sketcher.Constraint("Equal", 2, 4),
    Sketcher.Constraint("Equal", 3, 5),
    Sketcher.Constraint("Equal", 4, 6),
    Sketcher.Constraint("Equal", 5, 7),
    Sketcher.Constraint("Symmetric", 0, 3, 4, 3, -1, 1),
    Sketcher.Constraint("Symmetric", 2, 3, 6, 3, -1, 1),
    Sketcher.Constraint("Symmetric", 0, 3, 2, 3, -2),
    Sketcher.Constraint("Diameter", 0, Q("12 mm")),
    Sketcher.Constraint("Diameter", 1, Q("8 mm")),
    Sketcher.Constraint("DistanceX", -1, 1, 0, 3, Q("60 mm")),
    Sketcher.Constraint("DistanceY", 4, 3, 2, 3, Q("135 mm")),
])
pocket5 = body.newObject("PartDesign::Pocket", "Pocket004")
pocket5.Profile = sketch9
pocket5.Length = 6
pocket5.Reversed = True

# Sketch on XY plane
sketch10 = body.newObject("Sketcher::SketchObject", "Sketch009")
sketch10.AttachmentSupport = (doc.getObject("XY_Plane"), [""])
sketch10.MapMode = "FlatFace"
sketch10.AttachmentOffset = App.Placement(V(0, 0, -9), App.Rotation())
sketch10.addGeometry([
    Part.LineSegment(V(11, -13.5, 0), V(11, -17.5, 0)),  # 0
    Part.ArcOfCircle(Part.Circle(V(16.8, 0, 0), V(0, 0, 1), 18.5), math.radians(-172), math.radians(-108)),  # 1
    Part.LineSegment(V(-1.5, -2.5, 0), V(14, -2.5, 0)),  # 2
    Part.ArcOfCircle(Part.Circle(V(14, -5.5, 0), V(0, 0, 1), 3), math.radians(0), math.radians(90)),  # 3
    Part.LineSegment(V(17, -5.5, 0), V(17, -7.5, 0)),  # 4
    Part.ArcOfCircle(Part.Circle(V(14, -7.5, 0), V(0, 0, 1), 3), math.radians(-90), math.radians(0)),  # 5
    Part.ArcOfCircle(Part.Circle(V(14, -13.5, 0), V(0, 0, 1), 3), math.radians(90), math.radians(156)),  # 6
    Part.ArcOfCircle(Part.Circle(V(14, -13.5, 0), V(0, 0, 1), 3), math.radians(156), math.radians(180)),  # 7
    Part.ArcOfCircle(Part.Circle(V(16.8, 0, 0), V(0, 0, 1), 18.5), math.radians(108), math.radians(172)),  # 8
    Part.LineSegment(V(11, 17.5, 0), V(11, 13.5, 0)),  # 9
    Part.ArcOfCircle(Part.Circle(V(14, 13.5, 0), V(0, 0, 1), 3), math.radians(180), math.radians(204)),  # 10
    Part.ArcOfCircle(Part.Circle(V(14, 13.5, 0), V(0, 0, 1), 3), math.radians(-156), math.radians(-90)),  # 11
    Part.ArcOfCircle(Part.Circle(V(14, 7.5, 0), V(0, 0, 1), 3), math.radians(0), math.radians(90)),  # 12
    Part.LineSegment(V(17, 7.5, 0), V(17, 5.5, 0)),  # 13
    Part.ArcOfCircle(Part.Circle(V(14, 5.5, 0), V(0, 0, 1), 3), math.radians(-90), math.radians(0)),  # 14
    Part.LineSegment(V(14, 2.5, 0), V(-1.5, 2.5, 0)),  # 15
], False)
sketch10.addConstraint([
    Sketcher.Constraint("Coincident", 0, 2, 1, 2),
    Sketcher.Constraint("Coincident", 1, 1, 2, 1),
    Sketcher.Constraint("Tangent", 2, 2, 3, 2),
    Sketcher.Constraint("Tangent", 3, 1, 4, 1),
    Sketcher.Constraint("Tangent", 4, 2, 5, 2),
    Sketcher.Constraint("Tangent", 5, 1, 6, 1),
    Sketcher.Constraint("Tangent", 6, 2, 7, 1),
    Sketcher.Constraint("Tangent", 7, 2, 0, 1),
    Sketcher.Constraint("Coincident", 8, 1, 9, 1),
    Sketcher.Constraint("Tangent", 9, 2, 10, 1),
    Sketcher.Constraint("Tangent", 10, 2, 11, 1),
    Sketcher.Constraint("Tangent", 11, 2, 12, 2),
    Sketcher.Constraint("Tangent", 12, 1, 13, 1),
    Sketcher.Constraint("Tangent", 13, 2, 14, 2),
    Sketcher.Constraint("Tangent", 14, 1, 15, 1),
    Sketcher.Constraint("Coincident", 15, 2, 8, 2),
    Sketcher.Constraint("Vertical", 0),
    Sketcher.Constraint("Horizontal", 2),
    Sketcher.Constraint("Vertical", 4),
    Sketcher.Constraint("Vertical", 9),
    Sketcher.Constraint("Vertical", 13),
    Sketcher.Constraint("Horizontal", 15),
    Sketcher.Constraint("Coincident", 8, 3, 1, 3),
    Sketcher.Constraint("Equal", 3, 5),
    Sketcher.Constraint("Equal", 5, 6),
    Sketcher.Constraint("Equal", 6, 7),
    Sketcher.Constraint("Equal", 1, 8),
    Sketcher.Constraint("Equal", 7, 10),
    Sketcher.Constraint("Equal", 10, 11),
    Sketcher.Constraint("Equal", 11, 12),
    Sketcher.Constraint("Equal", 12, 14),
    Sketcher.Constraint("Symmetric", 6, 3, 10, 3, -1),
    Sketcher.Constraint("Symmetric", 3, 3, 14, 3, -1),
    Sketcher.Constraint("PointOnObject", 1, 3, -1),
    Sketcher.Constraint("Vertical", 5, 3, 6, 3),
    Sketcher.Constraint("Vertical", 6, 2, 10, 2),
    Sketcher.Constraint("Radius", 3, Q("3 mm")),
    Sketcher.Constraint("DistanceY", 4, 2, 4, 1, Q("2 mm")),
    Sketcher.Constraint("DistanceX", -1, 1, 3, 3, Q("14 mm")),
    Sketcher.Constraint("DistanceY", 3, 3, 10, 3, Q("19 mm")),
    Sketcher.Constraint("Radius", 1, Q("18.468279 mm")),
    Sketcher.Constraint("DistanceX", 2, 1, 2, 2, Q("15.541584 mm")),
    Sketcher.Constraint("DistanceX", 15, 2, 10, 2, Q("12.795229 mm")),
])
pocket6 = body.newObject("PartDesign::Pocket", "Pocket005")
pocket6.Profile = sketch10
pocket6.Length = 9
doc.recompute()

fillet = body.newObject("PartDesign::Fillet", "Fillet")
fillet.Base = (pocket6, edges_at(pocket6, [
    (-57, -23.703, -18),
    (-57, 23.703, -18),
    (25, 0, -5),
    (25, 16.527, -11.5),
    (25, -16.527, -11.5),
    (25, -27.887, -18),
    (35.225, 0, -18),
]))
fillet.Radius = 3
doc.recompute()

fillet2 = body.newObject("PartDesign::Fillet", "Fillet001")
fillet2.Base = (fillet, edges_at(fillet, [(0, -90, -25)]))
fillet2.Radius = 2

# Sketch on XY plane
sketch11 = body.newObject("Sketcher::SketchObject", "Sketch010")
sketch11.AttachmentSupport = (doc.getObject("XY_Plane"), [""])
sketch11.MapMode = "FlatFace"
sketch11.addGeometry([
    Part.LineSegment(V(33, -90, 0), V(-33, -90, 0)),  # 0
    Part.LineSegment(V(-33, -90, 0), V(-15, -108, 0)),  # 1
    Part.LineSegment(V(-15, -108, 0), V(-15, -120, 0)),  # 2
    Part.ArcOfCircle(Part.Circle(V(0, -120, 0), V(0, 0, 1), 15), math.radians(180), math.radians(360)),  # 3
    Part.LineSegment(V(15, -120, 0), V(15, -108, 0)),  # 4
    Part.LineSegment(V(15, -108, 0), V(33, -90, 0)),  # 5
    Part.Circle(V(0, -120, 0), V(0, 0, 1), 6),  # 6
    Part.LineSegment(V(-15, 108, 0), V(-33, 90, 0)),  # 7
    Part.LineSegment(V(-33, 90, 0), V(33, 90, 0)),  # 8
    Part.LineSegment(V(33, 90, 0), V(15, 108, 0)),  # 9
    Part.LineSegment(V(15, 108, 0), V(15, 120, 0)),  # 10
    Part.ArcOfCircle(Part.Circle(V(0, 120, 0), V(0, 0, 1), 15), math.radians(0), math.radians(180)),  # 11
    Part.LineSegment(V(-15, 120, 0), V(-15, 108, 0)),  # 12
    Part.Circle(V(0, 120, 0), V(0, 0, 1), 6),  # 13
], False)
sketch11.addConstraint([
    Sketcher.Constraint("Coincident", 0, 2, 1, 1),
    Sketcher.Constraint("Coincident", 1, 2, 2, 1),
    Sketcher.Constraint("Tangent", 2, 2, 3, 1),
    Sketcher.Constraint("Tangent", 3, 2, 4, 1),
    Sketcher.Constraint("Coincident", 4, 2, 5, 1),
    Sketcher.Constraint("Coincident", 5, 2, 0, 1),
    Sketcher.Constraint("Coincident", 7, 2, 8, 1),
    Sketcher.Constraint("Coincident", 8, 2, 9, 1),
    Sketcher.Constraint("Coincident", 9, 2, 10, 1),
    Sketcher.Constraint("Tangent", 10, 2, 11, 1),
    Sketcher.Constraint("Tangent", 11, 2, 12, 1),
    Sketcher.Constraint("Coincident", 12, 2, 7, 1),
    Sketcher.Constraint("Horizontal", 0),
    Sketcher.Constraint("Vertical", 2),
    Sketcher.Constraint("Vertical", 4),
    Sketcher.Constraint("Horizontal", 8),
    Sketcher.Constraint("Vertical", 10),
    Sketcher.Constraint("Vertical", 12),
    Sketcher.Constraint("Coincident", 6, 3, 3, 3),
    Sketcher.Constraint("Coincident", 13, 3, 11, 3),
    Sketcher.Constraint("Equal", 3, 11),
    Sketcher.Constraint("Equal", 6, 13),
    Sketcher.Constraint("Symmetric", 3, 3, 11, 3, -1, 1),
    Sketcher.Constraint("Symmetric", 5, 2, 7, 2, -1, 1),
    Sketcher.Constraint("Symmetric", 1, 2, 4, 2, -2),
    Sketcher.Constraint("Perpendicular", 1, 5),
    Sketcher.Constraint("Parallel", 5, 7),
    Sketcher.Constraint("Perpendicular", 7, 9),
    Sketcher.Constraint("Horizontal", 9, 2, 12, 2),
    Sketcher.Constraint("Vertical", 0, 2, 7, 2),
    Sketcher.Constraint("Diameter", 6, Q("12 mm")),
    Sketcher.Constraint("Radius", 3, Q("15 mm")),
    Sketcher.Constraint("DistanceX", 0, 2, 0, 1, Q("66 mm")),
    Sketcher.Constraint("DistanceY", 2, 2, 2, 1, Q("12 mm")),
    Sketcher.Constraint("DistanceY", 3, 3, -1, 1, Q("120 mm")),
])
pad5 = body.newObject("PartDesign::Pad", "Pad004")
pad5.Profile = sketch11
pad5.Length = 25
pad5.Reversed = True

doc.recompute()
